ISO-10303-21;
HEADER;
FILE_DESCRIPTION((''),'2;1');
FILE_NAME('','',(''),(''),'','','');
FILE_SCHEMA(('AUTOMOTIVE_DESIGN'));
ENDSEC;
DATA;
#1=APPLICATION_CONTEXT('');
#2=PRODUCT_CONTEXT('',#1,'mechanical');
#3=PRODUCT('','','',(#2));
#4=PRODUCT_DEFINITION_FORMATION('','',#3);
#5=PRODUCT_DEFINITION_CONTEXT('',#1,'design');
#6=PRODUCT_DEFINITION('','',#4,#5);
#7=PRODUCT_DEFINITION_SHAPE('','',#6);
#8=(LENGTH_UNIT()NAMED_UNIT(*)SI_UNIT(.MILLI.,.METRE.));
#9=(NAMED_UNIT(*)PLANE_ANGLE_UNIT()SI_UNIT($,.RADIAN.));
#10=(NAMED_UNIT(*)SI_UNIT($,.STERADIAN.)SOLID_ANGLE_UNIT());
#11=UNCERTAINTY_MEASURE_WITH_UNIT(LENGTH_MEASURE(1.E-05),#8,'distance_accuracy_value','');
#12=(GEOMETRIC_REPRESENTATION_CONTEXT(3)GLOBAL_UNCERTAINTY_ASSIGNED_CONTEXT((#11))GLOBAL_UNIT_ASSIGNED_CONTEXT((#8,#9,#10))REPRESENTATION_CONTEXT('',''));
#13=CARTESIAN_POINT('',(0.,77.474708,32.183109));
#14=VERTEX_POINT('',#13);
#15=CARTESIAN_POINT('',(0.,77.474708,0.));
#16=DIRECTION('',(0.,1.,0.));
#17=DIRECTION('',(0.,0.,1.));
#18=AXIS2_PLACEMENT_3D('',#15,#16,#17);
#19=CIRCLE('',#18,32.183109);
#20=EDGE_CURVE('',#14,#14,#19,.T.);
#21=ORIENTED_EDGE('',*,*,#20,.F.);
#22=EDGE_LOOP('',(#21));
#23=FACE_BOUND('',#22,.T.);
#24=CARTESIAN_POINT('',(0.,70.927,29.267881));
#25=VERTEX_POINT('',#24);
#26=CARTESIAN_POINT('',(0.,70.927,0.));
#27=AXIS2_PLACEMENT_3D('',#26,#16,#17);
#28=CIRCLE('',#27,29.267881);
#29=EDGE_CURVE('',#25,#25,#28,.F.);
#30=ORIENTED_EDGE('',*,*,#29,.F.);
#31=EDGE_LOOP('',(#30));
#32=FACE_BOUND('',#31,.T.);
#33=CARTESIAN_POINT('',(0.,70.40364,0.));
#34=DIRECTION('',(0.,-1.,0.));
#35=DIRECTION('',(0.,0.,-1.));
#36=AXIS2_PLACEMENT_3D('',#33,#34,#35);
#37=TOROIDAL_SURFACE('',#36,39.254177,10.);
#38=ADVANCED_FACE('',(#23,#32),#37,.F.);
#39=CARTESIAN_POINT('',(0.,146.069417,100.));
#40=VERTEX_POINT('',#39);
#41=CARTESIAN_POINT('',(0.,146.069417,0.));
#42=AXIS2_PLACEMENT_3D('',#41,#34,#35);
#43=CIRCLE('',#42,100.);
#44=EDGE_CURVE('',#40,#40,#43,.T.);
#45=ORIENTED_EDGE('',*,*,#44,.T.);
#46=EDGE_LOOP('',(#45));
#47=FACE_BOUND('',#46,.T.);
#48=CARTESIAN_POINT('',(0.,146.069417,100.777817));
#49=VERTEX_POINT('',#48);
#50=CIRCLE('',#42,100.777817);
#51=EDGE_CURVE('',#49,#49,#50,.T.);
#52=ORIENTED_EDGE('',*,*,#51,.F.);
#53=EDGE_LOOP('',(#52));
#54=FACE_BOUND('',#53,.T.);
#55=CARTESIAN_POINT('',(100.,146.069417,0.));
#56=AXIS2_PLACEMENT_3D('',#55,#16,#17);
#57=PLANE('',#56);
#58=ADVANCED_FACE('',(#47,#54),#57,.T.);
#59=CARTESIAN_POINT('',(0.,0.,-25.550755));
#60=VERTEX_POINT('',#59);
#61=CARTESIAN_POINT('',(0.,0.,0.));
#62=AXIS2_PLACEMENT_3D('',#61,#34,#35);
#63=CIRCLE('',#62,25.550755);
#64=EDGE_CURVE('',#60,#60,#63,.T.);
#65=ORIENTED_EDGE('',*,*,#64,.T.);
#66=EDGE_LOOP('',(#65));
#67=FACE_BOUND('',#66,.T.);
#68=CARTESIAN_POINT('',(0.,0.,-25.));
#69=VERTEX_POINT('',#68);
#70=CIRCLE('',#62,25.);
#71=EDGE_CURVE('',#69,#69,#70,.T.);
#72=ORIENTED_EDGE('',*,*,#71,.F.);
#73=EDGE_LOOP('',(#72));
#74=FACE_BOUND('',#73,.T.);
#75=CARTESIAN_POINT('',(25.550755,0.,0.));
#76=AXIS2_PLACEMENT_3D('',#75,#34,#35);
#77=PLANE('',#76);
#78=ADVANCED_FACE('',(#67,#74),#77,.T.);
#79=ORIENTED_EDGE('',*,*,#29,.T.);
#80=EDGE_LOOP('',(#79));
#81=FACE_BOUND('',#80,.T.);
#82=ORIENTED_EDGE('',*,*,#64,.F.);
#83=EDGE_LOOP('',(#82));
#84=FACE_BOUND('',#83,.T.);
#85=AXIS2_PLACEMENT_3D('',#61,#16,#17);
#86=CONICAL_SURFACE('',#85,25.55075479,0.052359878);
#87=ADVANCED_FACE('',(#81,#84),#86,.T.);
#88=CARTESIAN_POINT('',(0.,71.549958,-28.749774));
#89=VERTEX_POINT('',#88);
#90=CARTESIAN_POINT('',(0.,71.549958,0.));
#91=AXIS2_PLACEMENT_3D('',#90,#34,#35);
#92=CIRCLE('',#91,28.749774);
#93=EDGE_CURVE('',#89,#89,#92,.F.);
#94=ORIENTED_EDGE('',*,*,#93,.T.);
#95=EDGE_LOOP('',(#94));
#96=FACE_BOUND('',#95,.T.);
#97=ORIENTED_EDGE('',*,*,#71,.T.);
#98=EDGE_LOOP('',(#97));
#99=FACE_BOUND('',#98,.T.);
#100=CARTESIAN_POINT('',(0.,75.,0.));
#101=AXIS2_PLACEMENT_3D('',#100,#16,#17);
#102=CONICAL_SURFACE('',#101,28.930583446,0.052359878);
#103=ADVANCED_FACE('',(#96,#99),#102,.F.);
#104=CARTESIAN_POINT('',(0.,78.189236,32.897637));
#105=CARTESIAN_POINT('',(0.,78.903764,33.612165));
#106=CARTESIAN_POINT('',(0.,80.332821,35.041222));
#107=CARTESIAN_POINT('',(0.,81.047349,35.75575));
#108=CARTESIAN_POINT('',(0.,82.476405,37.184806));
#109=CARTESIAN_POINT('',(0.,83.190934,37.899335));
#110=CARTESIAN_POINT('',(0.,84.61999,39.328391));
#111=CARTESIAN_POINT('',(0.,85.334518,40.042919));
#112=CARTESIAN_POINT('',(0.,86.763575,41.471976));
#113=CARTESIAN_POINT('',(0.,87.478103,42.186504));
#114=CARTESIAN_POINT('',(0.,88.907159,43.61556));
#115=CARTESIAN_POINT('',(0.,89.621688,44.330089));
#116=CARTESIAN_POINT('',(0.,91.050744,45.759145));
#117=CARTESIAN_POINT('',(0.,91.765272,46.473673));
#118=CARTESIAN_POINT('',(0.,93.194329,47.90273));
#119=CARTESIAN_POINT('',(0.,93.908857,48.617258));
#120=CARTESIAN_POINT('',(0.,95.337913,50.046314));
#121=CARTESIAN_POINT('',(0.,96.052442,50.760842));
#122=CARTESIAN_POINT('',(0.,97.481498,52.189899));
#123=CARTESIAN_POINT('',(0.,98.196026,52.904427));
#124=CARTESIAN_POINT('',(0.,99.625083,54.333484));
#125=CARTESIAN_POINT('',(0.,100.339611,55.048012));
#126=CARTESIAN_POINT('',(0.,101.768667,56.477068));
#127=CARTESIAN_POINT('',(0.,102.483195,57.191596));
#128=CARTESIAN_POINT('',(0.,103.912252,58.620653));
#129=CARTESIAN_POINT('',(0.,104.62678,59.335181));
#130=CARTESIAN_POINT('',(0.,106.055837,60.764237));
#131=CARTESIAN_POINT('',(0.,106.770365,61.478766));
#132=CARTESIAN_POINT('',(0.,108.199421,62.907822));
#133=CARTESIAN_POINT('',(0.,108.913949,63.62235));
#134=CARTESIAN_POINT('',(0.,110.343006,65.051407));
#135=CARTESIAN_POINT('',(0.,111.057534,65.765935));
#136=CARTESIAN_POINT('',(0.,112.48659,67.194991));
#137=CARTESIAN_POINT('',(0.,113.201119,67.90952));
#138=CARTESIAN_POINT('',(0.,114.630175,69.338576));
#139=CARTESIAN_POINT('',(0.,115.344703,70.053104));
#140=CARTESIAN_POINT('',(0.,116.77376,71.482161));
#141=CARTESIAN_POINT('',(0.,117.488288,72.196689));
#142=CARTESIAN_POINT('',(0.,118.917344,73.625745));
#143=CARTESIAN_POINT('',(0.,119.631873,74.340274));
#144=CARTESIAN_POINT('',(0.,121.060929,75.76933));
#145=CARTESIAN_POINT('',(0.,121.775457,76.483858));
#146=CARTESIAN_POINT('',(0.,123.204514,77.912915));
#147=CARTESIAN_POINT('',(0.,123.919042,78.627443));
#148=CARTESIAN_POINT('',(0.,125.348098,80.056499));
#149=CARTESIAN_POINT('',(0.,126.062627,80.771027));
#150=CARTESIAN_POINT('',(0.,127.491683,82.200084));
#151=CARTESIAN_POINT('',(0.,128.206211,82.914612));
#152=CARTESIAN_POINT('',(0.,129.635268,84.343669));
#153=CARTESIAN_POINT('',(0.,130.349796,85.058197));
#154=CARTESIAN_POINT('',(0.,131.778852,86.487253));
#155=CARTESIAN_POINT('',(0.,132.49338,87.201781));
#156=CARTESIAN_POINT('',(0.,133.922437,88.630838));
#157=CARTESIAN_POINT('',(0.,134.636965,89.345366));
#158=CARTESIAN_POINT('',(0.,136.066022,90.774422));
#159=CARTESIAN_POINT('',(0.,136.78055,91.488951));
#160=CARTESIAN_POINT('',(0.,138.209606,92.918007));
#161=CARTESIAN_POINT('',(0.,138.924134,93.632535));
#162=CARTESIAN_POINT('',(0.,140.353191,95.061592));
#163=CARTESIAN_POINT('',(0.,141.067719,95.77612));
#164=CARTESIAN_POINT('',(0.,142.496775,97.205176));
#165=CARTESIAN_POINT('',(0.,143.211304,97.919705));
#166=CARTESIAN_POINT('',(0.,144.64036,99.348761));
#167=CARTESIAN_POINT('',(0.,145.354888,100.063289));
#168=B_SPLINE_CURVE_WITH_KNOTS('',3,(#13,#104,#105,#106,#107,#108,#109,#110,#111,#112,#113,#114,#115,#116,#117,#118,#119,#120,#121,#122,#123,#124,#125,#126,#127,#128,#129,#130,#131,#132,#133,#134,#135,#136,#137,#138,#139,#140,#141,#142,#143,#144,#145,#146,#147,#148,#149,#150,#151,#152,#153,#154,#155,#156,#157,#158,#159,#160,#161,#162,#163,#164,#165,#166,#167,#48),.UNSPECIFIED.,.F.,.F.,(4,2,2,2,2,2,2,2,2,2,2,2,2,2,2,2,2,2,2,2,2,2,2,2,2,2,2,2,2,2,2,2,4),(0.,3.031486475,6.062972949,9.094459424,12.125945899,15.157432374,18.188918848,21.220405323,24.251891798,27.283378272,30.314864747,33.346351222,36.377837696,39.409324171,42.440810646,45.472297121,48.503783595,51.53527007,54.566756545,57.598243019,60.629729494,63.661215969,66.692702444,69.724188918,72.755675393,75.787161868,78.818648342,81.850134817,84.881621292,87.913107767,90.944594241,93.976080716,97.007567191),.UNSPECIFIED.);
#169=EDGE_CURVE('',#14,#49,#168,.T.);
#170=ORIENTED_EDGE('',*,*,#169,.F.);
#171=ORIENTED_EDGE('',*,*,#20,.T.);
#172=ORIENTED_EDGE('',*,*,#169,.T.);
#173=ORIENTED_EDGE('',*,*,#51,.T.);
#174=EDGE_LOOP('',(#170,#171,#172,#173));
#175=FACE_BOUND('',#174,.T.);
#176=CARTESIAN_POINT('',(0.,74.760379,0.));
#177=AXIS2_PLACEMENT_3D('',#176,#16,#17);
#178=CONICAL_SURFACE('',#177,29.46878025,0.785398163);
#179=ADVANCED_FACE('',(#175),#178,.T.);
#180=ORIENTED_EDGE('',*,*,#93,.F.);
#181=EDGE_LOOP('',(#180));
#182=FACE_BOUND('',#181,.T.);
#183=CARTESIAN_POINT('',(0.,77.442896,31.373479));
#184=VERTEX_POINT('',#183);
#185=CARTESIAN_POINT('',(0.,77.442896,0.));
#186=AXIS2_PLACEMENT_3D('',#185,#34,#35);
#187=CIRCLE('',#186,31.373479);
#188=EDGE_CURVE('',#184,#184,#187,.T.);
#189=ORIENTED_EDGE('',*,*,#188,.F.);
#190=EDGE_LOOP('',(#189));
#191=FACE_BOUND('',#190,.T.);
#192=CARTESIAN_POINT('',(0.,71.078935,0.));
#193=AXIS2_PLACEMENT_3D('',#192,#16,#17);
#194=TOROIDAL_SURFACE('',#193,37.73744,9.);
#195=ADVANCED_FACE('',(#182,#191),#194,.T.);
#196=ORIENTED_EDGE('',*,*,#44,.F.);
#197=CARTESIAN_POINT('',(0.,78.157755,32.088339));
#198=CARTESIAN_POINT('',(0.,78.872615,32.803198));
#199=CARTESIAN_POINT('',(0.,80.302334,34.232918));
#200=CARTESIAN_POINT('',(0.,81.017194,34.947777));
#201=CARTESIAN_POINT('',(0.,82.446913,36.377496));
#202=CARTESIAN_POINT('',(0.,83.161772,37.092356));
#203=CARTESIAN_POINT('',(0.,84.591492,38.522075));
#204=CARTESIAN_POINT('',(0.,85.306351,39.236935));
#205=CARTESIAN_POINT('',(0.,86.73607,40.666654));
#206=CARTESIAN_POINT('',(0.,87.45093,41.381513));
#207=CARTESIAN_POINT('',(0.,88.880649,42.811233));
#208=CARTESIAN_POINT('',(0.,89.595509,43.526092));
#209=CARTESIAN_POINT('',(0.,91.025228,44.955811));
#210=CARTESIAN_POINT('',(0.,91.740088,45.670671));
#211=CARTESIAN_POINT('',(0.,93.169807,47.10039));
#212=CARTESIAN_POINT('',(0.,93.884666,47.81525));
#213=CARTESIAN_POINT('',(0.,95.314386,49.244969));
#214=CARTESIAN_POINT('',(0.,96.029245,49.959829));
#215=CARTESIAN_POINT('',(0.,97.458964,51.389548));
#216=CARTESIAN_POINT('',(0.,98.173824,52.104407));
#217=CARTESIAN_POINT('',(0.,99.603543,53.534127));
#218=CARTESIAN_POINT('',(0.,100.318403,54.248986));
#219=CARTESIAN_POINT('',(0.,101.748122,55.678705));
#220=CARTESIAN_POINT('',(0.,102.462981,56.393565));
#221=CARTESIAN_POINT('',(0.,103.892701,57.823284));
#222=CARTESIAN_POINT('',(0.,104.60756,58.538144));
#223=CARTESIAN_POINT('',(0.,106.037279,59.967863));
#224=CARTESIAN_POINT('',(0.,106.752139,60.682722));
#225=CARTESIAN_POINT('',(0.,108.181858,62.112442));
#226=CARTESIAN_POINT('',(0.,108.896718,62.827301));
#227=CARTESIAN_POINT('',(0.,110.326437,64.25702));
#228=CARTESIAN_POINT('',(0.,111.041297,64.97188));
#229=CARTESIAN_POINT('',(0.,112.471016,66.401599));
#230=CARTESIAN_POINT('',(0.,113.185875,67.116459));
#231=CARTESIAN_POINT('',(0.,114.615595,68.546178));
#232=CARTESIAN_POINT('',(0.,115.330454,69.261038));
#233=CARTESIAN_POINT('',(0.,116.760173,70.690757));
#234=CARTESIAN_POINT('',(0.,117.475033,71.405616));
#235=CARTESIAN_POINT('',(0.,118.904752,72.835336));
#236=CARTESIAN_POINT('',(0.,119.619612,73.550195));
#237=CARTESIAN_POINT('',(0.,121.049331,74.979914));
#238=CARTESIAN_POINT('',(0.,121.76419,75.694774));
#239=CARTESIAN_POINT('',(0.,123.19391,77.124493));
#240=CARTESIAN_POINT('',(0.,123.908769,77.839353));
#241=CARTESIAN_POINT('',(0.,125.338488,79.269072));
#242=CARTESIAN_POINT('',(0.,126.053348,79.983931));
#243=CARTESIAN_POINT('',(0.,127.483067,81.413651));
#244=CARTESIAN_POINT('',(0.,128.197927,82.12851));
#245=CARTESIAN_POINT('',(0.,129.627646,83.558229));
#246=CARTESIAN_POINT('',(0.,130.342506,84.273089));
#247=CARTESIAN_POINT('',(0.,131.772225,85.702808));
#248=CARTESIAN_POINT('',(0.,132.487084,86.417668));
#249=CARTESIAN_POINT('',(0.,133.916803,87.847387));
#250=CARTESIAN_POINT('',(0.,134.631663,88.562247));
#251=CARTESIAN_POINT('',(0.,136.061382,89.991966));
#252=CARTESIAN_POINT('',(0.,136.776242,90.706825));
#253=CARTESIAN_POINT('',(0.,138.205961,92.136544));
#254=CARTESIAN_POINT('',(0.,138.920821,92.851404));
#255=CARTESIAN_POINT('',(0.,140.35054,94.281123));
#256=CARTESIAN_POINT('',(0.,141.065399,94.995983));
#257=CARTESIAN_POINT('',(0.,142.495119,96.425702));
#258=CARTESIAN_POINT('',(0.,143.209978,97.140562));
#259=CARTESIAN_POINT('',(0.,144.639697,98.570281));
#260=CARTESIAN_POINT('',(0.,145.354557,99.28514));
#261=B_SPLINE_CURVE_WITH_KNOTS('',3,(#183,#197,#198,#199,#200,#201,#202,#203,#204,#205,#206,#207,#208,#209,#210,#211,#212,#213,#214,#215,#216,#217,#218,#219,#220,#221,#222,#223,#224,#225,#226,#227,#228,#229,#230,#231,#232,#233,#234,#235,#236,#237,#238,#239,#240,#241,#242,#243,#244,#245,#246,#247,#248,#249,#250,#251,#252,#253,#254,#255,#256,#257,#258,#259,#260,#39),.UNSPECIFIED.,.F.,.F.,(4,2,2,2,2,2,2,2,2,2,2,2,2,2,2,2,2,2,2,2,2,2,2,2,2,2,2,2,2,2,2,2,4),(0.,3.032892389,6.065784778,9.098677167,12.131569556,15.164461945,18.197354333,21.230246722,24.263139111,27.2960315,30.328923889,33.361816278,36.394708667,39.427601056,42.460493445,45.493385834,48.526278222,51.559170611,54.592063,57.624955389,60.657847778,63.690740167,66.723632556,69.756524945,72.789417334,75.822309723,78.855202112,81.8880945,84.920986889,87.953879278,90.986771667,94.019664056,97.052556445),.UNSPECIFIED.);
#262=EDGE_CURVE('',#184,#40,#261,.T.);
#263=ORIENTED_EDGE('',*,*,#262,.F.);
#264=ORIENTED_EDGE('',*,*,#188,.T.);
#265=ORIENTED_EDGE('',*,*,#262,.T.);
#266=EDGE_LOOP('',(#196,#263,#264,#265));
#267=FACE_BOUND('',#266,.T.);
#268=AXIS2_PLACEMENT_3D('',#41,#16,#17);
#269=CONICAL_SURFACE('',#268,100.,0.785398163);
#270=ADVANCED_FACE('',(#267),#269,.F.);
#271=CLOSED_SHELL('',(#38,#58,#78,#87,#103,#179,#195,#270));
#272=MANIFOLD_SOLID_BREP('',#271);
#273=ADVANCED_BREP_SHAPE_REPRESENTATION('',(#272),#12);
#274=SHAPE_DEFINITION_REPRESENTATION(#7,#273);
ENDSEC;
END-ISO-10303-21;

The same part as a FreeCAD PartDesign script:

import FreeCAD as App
import Part
import Sketcher
from FreeCAD import Vector
Q = App.Units.Quantity


def edges_at(feature, points):
    """Names of the edges that pass closest to the given points."""
    edges = feature.Shape.Edges
    near = lambda p: min(range(len(edges)), key=lambda i: edges[i].distToShape(Part.Vertex(*p))[0])
    return sorted({f"Edge{near(p) + 1}" for p in points})


def add_polygon(sketch, points):
    """Adds a closed chain of lines whose ends are joined by coincident constraints."""
    first, n = sketch.GeometryCount, len(points)
    for a, b in zip(points, points[1:] + points[:1]):
        sketch.addGeometry(Part.LineSegment(App.Vector(*a, 0), App.Vector(*b, 0)), False)
    for i in range(n):
        sketch.addConstraint(Sketcher.Constraint("Coincident", first + i, 2, first + (i + 1) % n, 1))

doc = App.newDocument("Part")
body = doc.addObject("PartDesign::Body", "Body")

sketch1 = body.newObject("Sketcher::SketchObject", "Sketch")
sketch1.AttachmentSupport = (doc.getObject("XY_Plane"), [""])
sketch1.MapMode = "FlatFace"
add_polygon(sketch1, [(28.9, 75), (25, 0), (25.6, 0), (29.5, 74.8), (100.8, 146.1), (100, 146.1)])
sketch1.addConstraint([
    Sketcher.Constraint("Horizontal", 1),
    Sketcher.Constraint("Horizontal", 4),
    Sketcher.Constraint("PointOnObject", 0, 2, -1),
    Sketcher.Constraint("Parallel", 0, 2),
    Sketcher.Constraint("Parallel", 3, 5),
    Sketcher.Constraint("Angle", 0, Q("-93 deg")),
    Sketcher.Constraint("Angle", 3, Q("45 deg")),
    Sketcher.Constraint("DistanceX", -1, 1, 0, 2, 25.0),
    Sketcher.Constraint("DistanceX", -1, 1, 4, 2, 100.0),
    Sketcher.Constraint("DistanceY", -1, 1, 5, 2, 75.0),
    Sketcher.Constraint("DistanceX", 1, 1, 1, 2, 0.550755),
    Sketcher.Constraint("DistanceX", 4, 2, 4, 1, 0.777817),
])
revolution = body.newObject("PartDesign::Revolution", "Revolution")
revolution.Profile = sketch1
revolution.ReferenceAxis = (sketch1, ["V_Axis"])
revolution.Angle = 360
doc.recompute()

fillet = body.newObject("PartDesign::Fillet", "Fillet")
fillet.Base = (revolution, edges_at(revolution, [(0, 74.76, -29.469)]))
fillet.Radius = 10
doc.recompute()

fillet2 = body.newObject("PartDesign::Fillet", "Fillet001")
fillet2.Base = (fillet, edges_at(fillet, [(0, 75, -28.931)]))
fillet2.Radius = 9

doc.recompute()
